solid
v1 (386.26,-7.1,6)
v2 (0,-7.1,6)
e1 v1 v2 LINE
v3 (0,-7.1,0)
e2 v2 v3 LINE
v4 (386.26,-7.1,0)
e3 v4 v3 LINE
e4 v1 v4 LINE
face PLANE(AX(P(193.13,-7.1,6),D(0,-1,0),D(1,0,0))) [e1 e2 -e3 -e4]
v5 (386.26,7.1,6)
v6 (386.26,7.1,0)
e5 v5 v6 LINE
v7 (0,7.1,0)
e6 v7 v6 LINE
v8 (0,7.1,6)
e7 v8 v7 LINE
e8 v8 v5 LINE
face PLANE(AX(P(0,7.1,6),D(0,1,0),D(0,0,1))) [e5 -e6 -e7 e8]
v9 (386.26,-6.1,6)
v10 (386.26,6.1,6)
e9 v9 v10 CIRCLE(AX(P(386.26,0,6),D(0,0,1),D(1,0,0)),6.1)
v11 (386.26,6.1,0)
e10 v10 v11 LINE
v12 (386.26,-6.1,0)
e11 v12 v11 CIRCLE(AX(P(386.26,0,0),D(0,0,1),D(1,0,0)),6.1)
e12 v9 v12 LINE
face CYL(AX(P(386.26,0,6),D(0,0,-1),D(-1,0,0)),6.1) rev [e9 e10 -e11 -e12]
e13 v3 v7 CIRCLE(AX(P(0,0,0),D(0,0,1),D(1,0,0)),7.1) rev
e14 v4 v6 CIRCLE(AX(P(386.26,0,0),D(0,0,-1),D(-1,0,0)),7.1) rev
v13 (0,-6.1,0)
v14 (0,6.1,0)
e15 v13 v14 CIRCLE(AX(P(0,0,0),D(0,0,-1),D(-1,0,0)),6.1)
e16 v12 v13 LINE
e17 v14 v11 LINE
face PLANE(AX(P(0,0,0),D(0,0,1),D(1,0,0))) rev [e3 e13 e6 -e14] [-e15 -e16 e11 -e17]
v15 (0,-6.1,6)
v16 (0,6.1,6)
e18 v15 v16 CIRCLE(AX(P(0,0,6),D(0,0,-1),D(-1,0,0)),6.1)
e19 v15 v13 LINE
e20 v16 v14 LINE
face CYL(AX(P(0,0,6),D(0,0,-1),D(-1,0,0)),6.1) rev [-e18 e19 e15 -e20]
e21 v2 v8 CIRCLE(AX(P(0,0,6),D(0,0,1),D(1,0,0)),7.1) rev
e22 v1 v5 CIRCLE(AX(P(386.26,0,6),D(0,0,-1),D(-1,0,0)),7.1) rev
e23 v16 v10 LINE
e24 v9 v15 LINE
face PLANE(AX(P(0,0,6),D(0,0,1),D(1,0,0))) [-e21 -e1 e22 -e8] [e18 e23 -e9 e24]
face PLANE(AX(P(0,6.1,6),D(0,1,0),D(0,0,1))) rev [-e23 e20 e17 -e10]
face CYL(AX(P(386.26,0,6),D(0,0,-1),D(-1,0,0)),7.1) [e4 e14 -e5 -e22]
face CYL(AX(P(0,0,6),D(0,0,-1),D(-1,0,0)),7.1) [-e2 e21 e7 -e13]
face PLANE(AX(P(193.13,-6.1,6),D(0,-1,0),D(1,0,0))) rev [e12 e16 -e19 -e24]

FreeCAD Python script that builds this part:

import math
import FreeCAD as App
import Part
import Sketcher
from FreeCAD import Vector
Q = App.Units.Quantity

doc = App.newDocument("Part")
body = doc.addObject("PartDesign::Body", "Body")

# Sketch on XY plane
sketch1 = body.newObject("Sketcher::SketchObject", "Sketch")
sketch1.AttachmentSupport = (doc.getObject("XY_Plane"), [""])
sketch1.MapMode = "FlatFace"
sketch1.addGeometry(Part.LineSegment(Vector(193.1, -6.1, 0), Vector(0, -6.1, 0)), False)
sketch1.addGeometry(Part.ArcOfCircle(Part.Circle(Vector(0, 0, 0), Vector(0, 0, 1), 6.1), math.radians(90), math.radians(270)), False)
sketch1.addGeometry(Part.LineSegment(Vector(0, 6.1, 0), Vector(193.1, 6.1, 0)), False)
sketch1.addGeometry(Part.LineSegment(Vector(193.1, 6.1, 0), Vector(193.1, 7.1, 0)), False)
sketch1.addGeometry(Part.LineSegment(Vector(193.1, 7.1, 0), Vector(0, 7.1, 0)), False)
sketch1.addGeometry(Part.ArcOfCircle(Part.Circle(Vector(0, 0, 0), Vector(0, 0, 1), 7.1), math.radians(90), math.radians(270)), False)
sketch1.addGeometry(Part.LineSegment(Vector(0, -7.1, 0), Vector(193.1, -7.1, 0)), False)
sketch1.addGeometry(Part.LineSegment(Vector(193.1, -7.1, 0), Vector(193.1, -6.1, 0)), False)
sketch1.addConstraint(Sketcher.Constraint("Tangent", 0, 2, 1, 2))
sketch1.addConstraint(Sketcher.Constraint("Tangent", 1, 1, 2, 1))
sketch1.addConstraint(Sketcher.Constraint("Coincident", 2, 2, 3, 1))
sketch1.addConstraint(Sketcher.Constraint("Coincident", 3, 2, 4, 1))
sketch1.addConstraint(Sketcher.Constraint("Tangent", 4, 2, 5, 1))
sketch1.addConstraint(Sketcher.Constraint("Tangent", 5, 2, 6, 1))
sketch1.addConstraint(Sketcher.Constraint("Coincident", 6, 2, 7, 1))
sketch1.addConstraint(Sketcher.Constraint("Coincident", 7, 2, 0, 1))
sketch1.addConstraint(Sketcher.Constraint("Horizontal", 0))
sketch1.addConstraint(Sketcher.Constraint("Horizontal", 2))
sketch1.addConstraint(Sketcher.Constraint("Vertical", 3))
sketch1.addConstraint(Sketcher.Constraint("Horizontal", 4))
sketch1.addConstraint(Sketcher.Constraint("Horizontal", 6))
sketch1.addConstraint(Sketcher.Constraint("Vertical", 7))
sketch1.addConstraint(Sketcher.Constraint("Coincident", 1, 3, -1, 1))
sketch1.addConstraint(Sketcher.Constraint("Coincident", 5, 3, -1, 1))
sketch1.addConstraint(Sketcher.Constraint("Vertical", 3, 2, 6, 2))
sketch1.addConstraint(Sketcher.Constraint("Radius", 1, Q("6.1 mm")))
sketch1.addConstraint(Sketcher.Constraint("Radius", 5, Q("7.1 mm")))
sketch1.addConstraint(Sketcher.Constraint("DistanceX", 0, 2, 0, 1, Q("193.13 mm")))
pad1 = body.newObject("PartDesign::Pad", "Pad")
pad1.Profile = sketch1
pad1.Length = 6
doc.recompute()

datumplane = body.newObject("PartDesign::Plane", "DatumPlane")
datumplane.AttachmentSupport = (doc.getObject("YZ_Plane"), [""])
datumplane.MapMode = "FlatFace"
datumplane.AttachmentOffset = App.Placement(Vector(0, 0, 193.13), App.Rotation())
mirrored = body.newObject("PartDesign::Mirrored", "Mirrored")
mirrored.Originals = [pad1]
mirrored.MirrorPlane = (datumplane, [""])
body.Tip = mirrored

doc.recompute()
